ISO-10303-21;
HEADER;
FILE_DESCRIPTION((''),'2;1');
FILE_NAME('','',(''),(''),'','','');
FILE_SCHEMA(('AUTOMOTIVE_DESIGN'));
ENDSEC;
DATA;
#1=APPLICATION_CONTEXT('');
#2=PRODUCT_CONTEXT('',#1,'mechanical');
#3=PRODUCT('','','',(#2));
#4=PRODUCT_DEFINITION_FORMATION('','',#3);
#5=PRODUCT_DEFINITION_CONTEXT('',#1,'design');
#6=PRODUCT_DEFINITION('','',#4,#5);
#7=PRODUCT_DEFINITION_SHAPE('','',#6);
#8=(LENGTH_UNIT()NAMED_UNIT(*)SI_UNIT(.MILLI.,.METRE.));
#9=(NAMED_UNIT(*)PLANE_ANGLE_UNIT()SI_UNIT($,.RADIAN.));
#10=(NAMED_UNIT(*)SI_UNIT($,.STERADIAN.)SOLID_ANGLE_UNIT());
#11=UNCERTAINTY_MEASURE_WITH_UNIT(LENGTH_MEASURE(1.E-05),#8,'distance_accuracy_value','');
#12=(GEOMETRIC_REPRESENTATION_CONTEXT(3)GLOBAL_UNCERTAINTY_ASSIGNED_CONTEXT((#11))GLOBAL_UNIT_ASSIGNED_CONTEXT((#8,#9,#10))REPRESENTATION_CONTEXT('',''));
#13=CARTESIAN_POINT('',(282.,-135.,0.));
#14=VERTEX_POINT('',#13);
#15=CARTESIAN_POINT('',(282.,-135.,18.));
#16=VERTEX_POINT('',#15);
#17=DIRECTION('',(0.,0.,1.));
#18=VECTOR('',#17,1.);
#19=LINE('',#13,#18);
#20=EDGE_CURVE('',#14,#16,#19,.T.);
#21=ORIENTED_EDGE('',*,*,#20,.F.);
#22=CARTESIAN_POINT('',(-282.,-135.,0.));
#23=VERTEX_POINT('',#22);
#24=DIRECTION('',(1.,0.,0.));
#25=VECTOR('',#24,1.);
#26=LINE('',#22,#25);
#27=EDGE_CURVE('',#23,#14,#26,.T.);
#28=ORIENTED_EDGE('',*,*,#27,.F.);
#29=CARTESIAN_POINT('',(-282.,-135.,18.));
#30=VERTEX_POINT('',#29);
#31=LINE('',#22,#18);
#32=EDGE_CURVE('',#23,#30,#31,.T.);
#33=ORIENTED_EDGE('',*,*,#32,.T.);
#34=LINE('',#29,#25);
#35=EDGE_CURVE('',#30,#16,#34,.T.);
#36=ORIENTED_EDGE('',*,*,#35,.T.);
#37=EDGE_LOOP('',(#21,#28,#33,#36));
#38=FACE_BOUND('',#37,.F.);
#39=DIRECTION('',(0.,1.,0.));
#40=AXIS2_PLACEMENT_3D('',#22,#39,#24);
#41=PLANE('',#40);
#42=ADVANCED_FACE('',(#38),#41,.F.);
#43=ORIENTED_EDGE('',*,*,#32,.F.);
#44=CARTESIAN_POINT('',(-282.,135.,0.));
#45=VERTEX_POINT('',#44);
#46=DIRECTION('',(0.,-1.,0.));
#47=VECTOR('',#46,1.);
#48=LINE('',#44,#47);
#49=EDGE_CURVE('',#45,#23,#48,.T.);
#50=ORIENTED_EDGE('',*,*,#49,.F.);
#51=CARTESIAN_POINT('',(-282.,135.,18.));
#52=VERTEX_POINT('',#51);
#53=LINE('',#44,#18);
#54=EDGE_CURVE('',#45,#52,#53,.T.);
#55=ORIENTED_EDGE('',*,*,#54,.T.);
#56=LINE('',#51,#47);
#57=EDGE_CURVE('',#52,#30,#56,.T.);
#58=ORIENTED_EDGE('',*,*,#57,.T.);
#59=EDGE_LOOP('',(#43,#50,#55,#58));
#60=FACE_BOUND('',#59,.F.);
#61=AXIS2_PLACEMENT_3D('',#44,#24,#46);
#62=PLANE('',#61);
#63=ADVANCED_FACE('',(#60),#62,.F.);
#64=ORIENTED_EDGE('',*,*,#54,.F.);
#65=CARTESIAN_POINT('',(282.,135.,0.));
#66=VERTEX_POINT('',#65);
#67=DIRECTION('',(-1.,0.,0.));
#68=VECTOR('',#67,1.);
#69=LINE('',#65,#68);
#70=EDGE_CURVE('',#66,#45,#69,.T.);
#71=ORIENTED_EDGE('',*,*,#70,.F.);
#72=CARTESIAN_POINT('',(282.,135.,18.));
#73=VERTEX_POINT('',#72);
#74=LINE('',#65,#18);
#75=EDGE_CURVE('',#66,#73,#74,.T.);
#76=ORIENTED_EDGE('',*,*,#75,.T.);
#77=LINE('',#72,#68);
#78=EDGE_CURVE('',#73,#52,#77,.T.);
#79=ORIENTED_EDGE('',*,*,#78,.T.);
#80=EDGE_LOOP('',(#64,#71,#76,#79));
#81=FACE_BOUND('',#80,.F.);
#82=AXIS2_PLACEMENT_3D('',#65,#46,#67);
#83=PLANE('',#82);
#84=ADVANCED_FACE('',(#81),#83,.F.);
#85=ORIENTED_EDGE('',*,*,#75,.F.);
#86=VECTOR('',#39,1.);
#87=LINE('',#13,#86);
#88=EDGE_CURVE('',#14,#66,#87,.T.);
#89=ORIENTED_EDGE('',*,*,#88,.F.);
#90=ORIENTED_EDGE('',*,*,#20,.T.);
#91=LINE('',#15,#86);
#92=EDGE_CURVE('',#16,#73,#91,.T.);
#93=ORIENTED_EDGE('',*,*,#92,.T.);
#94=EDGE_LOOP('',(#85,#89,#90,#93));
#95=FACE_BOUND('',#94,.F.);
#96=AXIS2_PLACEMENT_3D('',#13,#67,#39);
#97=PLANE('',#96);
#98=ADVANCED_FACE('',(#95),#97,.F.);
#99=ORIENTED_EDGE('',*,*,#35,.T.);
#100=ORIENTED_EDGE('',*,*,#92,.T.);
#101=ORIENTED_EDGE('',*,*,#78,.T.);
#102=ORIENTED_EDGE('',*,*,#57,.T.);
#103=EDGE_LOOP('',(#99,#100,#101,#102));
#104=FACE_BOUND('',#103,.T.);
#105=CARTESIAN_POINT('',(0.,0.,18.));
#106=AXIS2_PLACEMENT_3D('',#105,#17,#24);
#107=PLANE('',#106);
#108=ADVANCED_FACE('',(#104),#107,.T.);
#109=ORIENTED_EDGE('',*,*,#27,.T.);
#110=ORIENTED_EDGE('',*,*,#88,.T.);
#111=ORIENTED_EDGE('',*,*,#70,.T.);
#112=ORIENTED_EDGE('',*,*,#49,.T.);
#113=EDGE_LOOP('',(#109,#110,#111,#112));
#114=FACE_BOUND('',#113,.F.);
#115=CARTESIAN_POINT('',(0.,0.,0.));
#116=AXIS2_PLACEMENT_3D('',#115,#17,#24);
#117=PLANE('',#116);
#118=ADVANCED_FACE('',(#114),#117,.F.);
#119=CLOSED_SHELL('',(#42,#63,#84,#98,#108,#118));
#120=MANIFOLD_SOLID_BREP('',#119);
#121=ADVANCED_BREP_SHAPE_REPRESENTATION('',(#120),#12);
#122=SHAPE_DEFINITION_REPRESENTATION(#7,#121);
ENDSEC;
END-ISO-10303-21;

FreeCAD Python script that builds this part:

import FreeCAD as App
import Part
import Sketcher
from FreeCAD import Vector

doc = App.newDocument("Part")
params = doc.addObject("Spreadsheet::Sheet", "Params")
for row, (alias, value) in enumerate([
    ("sketch1_width", "564 mm"),
    ("sketch1_height", "270 mm"),
    ("pad1_length", "18 mm"),
], start=1):
    params.set(f"A{row}", alias)
    params.set(f"B{row}", "=" + value)
    params.setAlias(f"B{row}", alias)

body = doc.addObject("PartDesign::Body", "Body")

# Sketch on XY plane
sketch1 = body.newObject("Sketcher::SketchObject", "Sketch")
sketch1.AttachmentSupport = (doc.getObject("XY_Plane"), [""])
sketch1.MapMode = "FlatFace"
sketch1.addGeometry(Part.LineSegment(Vector(-282, 135, 0), Vector(-282, -135, 0)), False)
sketch1.addGeometry(Part.LineSegment(Vector(-282, -135, 0), Vector(282, -135, 0)), False)
sketch1.addGeometry(Part.LineSegment(Vector(282, -135, 0), Vector(282, 135, 0)), False)
sketch1.addGeometry(Part.LineSegment(Vector(282, 135, 0), Vector(-282, 135, 0)), False)
sketch1.addConstraint(Sketcher.Constraint("Coincident", 0, 2, 1, 1))
sketch1.addConstraint(Sketcher.Constraint("Coincident", 1, 2, 2, 1))
sketch1.addConstraint(Sketcher.Constraint("Coincident", 2, 2, 3, 1))
sketch1.addConstraint(Sketcher.Constraint("Coincident", 3, 2, 0, 1))
sketch1.addConstraint(Sketcher.Constraint("Vertical", 0))
sketch1.addConstraint(Sketcher.Constraint("Horizontal", 1))
sketch1.addConstraint(Sketcher.Constraint("Vertical", 2))
sketch1.addConstraint(Sketcher.Constraint("Horizontal", 3))
sketch1.addConstraint(Sketcher.Constraint("Symmetric", 0, 2, 2, 2, -1, 1))
sketch1.addConstraint(Sketcher.Constraint("DistanceX", 1, 1, 1, 2, 564.0))
sketch1.addConstraint(Sketcher.Constraint("DistanceY", 0, 2, 0, 1, 270.0))
sketch1.setExpression("Constraints[9]", "Params.sketch1_width")
sketch1.setExpression("Constraints[10]", "Params.sketch1_height")
pad1 = body.newObject("PartDesign::Pad", "Pad")
pad1.Profile = sketch1
pad1.setExpression("Length", "Params.pad1_length")

doc.recompute()
